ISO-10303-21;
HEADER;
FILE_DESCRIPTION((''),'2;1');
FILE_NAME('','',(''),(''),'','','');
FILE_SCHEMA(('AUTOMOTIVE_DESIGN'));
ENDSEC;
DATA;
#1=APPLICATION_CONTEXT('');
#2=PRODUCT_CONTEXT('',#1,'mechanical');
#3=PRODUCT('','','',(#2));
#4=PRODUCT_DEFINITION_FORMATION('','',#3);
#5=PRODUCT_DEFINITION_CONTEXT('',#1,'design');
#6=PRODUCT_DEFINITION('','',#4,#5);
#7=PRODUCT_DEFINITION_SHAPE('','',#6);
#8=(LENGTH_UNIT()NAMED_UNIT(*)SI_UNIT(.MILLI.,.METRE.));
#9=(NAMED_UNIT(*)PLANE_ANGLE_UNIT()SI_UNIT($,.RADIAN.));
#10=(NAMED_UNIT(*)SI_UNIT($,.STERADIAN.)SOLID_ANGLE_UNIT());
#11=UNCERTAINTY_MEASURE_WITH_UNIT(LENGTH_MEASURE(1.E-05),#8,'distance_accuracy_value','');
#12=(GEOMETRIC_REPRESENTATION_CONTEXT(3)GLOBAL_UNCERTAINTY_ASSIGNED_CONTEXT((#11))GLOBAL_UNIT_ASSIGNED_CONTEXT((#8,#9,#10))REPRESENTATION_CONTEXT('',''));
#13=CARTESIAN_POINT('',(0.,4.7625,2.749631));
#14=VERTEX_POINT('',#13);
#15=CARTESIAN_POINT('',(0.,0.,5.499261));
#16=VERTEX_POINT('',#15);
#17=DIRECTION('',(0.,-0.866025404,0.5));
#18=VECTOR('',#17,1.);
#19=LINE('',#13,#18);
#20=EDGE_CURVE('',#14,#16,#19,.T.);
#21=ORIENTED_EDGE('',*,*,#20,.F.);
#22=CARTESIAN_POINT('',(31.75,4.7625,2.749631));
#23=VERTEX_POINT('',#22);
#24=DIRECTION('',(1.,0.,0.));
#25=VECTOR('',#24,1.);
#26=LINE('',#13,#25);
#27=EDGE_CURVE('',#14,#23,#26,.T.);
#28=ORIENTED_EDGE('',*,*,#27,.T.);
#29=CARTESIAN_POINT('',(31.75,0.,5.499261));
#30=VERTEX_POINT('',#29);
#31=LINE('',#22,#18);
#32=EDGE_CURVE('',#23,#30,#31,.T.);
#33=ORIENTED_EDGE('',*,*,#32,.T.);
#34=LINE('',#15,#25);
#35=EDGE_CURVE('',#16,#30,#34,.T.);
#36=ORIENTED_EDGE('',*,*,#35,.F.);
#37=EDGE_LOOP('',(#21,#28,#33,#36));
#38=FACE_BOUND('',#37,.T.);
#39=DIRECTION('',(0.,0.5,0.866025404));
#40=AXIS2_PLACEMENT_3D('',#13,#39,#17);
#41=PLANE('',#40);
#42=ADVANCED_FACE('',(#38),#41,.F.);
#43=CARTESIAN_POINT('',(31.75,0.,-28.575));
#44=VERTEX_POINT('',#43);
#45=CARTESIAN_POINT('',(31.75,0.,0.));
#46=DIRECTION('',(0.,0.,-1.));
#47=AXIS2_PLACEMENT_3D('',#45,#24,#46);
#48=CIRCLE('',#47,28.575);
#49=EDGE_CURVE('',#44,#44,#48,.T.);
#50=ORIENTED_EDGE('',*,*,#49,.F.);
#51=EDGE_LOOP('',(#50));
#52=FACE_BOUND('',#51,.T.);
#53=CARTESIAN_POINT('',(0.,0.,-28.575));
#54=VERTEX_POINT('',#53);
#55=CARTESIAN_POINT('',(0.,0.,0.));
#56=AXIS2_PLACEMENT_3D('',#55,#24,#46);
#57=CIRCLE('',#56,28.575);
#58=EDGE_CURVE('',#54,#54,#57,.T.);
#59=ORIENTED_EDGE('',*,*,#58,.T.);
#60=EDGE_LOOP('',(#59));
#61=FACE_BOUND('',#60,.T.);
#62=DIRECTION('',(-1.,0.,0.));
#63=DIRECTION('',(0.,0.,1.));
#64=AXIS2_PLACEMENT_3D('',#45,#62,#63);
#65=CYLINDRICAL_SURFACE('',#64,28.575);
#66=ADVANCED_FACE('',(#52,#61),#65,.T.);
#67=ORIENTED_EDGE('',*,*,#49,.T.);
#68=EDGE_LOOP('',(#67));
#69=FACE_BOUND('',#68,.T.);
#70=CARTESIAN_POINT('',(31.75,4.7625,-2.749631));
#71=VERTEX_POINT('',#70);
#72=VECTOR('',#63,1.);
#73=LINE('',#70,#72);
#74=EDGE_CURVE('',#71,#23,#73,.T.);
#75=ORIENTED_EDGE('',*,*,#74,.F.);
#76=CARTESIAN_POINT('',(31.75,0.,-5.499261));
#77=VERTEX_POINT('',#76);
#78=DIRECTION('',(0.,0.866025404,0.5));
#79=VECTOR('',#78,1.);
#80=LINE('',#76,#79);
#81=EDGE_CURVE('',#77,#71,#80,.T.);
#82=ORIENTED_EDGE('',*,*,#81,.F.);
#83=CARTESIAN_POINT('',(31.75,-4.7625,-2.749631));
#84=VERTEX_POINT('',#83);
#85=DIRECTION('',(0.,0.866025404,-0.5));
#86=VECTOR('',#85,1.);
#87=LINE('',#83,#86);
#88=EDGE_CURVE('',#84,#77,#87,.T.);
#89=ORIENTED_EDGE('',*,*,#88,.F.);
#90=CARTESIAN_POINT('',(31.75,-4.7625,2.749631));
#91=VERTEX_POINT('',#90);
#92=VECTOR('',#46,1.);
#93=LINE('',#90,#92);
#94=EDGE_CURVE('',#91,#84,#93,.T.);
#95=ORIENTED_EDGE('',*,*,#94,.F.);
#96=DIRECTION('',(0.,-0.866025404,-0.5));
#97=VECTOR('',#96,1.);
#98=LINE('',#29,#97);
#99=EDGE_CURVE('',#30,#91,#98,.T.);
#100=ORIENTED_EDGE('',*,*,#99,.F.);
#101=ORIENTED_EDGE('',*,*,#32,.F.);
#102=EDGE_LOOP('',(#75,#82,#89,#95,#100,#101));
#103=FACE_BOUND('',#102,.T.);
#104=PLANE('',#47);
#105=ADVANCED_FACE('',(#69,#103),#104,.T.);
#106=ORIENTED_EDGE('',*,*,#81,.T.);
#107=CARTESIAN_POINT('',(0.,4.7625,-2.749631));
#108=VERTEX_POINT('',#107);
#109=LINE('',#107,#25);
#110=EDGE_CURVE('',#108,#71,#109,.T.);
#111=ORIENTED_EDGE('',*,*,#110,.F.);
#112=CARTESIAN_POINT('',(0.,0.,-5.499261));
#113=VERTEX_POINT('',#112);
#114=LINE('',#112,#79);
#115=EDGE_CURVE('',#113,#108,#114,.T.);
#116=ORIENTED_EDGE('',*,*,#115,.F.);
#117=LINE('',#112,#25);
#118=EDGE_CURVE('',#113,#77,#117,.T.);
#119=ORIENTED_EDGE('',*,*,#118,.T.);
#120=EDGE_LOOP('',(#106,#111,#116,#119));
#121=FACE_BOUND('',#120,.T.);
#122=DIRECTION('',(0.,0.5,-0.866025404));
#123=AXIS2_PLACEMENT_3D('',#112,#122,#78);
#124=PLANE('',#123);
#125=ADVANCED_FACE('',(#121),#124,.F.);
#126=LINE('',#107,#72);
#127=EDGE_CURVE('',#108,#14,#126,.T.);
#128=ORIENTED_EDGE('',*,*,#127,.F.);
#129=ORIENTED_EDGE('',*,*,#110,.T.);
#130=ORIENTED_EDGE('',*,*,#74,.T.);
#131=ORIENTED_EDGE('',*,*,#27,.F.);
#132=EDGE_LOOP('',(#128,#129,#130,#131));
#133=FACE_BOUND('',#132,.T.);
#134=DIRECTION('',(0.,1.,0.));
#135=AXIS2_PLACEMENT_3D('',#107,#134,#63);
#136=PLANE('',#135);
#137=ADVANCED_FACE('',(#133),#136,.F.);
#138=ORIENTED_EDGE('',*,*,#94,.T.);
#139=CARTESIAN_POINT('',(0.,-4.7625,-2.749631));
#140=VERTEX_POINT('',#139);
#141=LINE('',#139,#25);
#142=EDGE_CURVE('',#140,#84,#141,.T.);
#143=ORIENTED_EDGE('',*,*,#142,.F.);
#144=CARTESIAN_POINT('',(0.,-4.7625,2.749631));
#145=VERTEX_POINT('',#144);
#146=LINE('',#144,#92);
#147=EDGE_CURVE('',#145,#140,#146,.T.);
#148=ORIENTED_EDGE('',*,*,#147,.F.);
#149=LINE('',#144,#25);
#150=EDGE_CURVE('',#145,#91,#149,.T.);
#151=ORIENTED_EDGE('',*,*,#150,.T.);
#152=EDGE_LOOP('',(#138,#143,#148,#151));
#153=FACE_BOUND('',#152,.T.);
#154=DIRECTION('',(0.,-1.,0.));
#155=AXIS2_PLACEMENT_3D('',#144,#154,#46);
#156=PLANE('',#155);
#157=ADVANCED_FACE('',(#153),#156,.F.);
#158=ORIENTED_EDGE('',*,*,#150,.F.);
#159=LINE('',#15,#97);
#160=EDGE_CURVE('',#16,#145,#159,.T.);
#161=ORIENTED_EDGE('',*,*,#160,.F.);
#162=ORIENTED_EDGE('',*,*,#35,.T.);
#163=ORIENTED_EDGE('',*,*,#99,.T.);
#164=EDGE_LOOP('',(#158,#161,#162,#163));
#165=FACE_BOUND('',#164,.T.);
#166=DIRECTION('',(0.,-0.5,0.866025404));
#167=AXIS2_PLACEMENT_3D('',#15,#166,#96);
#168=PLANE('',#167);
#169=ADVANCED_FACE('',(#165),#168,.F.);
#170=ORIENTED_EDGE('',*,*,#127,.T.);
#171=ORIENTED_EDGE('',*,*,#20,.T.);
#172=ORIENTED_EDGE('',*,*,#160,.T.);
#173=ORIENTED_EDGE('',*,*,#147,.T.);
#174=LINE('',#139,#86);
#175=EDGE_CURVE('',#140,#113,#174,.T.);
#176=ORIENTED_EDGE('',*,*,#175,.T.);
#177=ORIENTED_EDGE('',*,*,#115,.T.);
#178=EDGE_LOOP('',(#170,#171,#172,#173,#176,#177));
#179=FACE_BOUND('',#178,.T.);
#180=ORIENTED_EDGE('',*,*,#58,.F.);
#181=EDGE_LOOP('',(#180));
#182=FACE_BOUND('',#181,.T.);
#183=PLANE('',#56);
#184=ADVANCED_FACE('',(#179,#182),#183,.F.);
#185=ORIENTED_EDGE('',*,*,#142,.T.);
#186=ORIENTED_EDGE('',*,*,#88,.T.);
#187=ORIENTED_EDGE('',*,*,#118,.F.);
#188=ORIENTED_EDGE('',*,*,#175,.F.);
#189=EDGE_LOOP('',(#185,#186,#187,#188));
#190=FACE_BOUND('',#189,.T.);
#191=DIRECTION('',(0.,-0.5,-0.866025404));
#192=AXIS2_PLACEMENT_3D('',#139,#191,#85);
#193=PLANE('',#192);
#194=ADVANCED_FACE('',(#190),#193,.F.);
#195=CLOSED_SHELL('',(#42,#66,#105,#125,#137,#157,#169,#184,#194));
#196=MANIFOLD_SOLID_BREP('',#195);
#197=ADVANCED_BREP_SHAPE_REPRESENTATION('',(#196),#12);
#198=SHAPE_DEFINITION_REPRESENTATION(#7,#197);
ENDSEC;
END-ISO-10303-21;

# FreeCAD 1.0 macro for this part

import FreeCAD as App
import Part
import Sketcher

V = App.Vector
Q = App.Units.Quantity


def add_polygon(sketch, points):
    """Adds a closed chain of lines whose ends are joined by coincident constraints."""
    first, n = sketch.GeometryCount, len(points)
    for a, b in zip(points, points[1:] + points[:1]):
        sketch.addGeometry(Part.LineSegment(App.Vector(*a, 0), App.Vector(*b, 0)), False)
    for i in range(n):
        sketch.addConstraint(Sketcher.Constraint("Coincident", first + i, 2, first + (i + 1) % n, 1))

doc = App.newDocument("Part")
body = doc.addObject("PartDesign::Body", "Body")

# Sketch on YZ plane
sketch1 = doc.addObject("Sketcher::SketchObject", "Sketch")
body.addObject(sketch1)
sketch1.AttachmentSupport = (doc.YZ_Plane, [""])
sketch1.MapMode = "FlatFace"
sketch1.addGeometry(Part.Circle(V(0, 0, 0), V(0, 0, 1), 28.575), False)
sketch1.addConstraint(Sketcher.Constraint("Coincident", 0, 3, -1, 1))
sketch1.addConstraint(Sketcher.Constraint("Diameter", 0, Q("2.25 in")))
pad1 = doc.addObject("PartDesign::Pad", "Pad")
body.addObject(pad1)
pad1.Profile = sketch1
pad1.Length = Q("1.25 in")

# Sketch on YZ plane
sketch2 = doc.addObject("Sketcher::SketchObject", "Sketch001")
body.addObject(sketch2)
sketch2.AttachmentSupport = (doc.YZ_Plane, [""])
sketch2.MapMode = "FlatFace"
sketch2.AttachmentOffset = App.Placement(V(0, 0, 1.25 * 25.4), App.Rotation())
add_polygon(sketch2, [(-4.7625, -2.749631), (0, -5.499261), (4.7625, -2.749631), (4.7625, 2.749631), (0, 5.499261), (-4.7625, 2.749631)])  # lines 0-5
sketch2.addConstraint(Sketcher.Constraint("Vertical", 2))
sketch2.addConstraint(Sketcher.Constraint("Vertical", 5))
sketch2.addConstraint(Sketcher.Constraint("Symmetric", 0, 2, 3, 2, -1, 1))
sketch2.addConstraint(Sketcher.Constraint("Symmetric", 1, 2, 4, 2, -1, 1))
sketch2.addConstraint(Sketcher.Constraint("PointOnObject", 0, 2, -2))
sketch2.addConstraint(Sketcher.Constraint("Parallel", 0, 3))
sketch2.addConstraint(Sketcher.Constraint("Horizontal", 2, 2, 4, 2))
sketch2.addConstraint(Sketcher.Constraint("Angle", 0, Q("-30 deg")))
sketch2.addConstraint(Sketcher.Constraint("DistanceX", -1, 1, 1, 2, Q("0.1875 in")))
sketch2.addConstraint(Sketcher.Constraint("DistanceY", 2, 1, 2, 2, 5.499261))
pocket1 = doc.addObject("PartDesign::Pocket", "Pocket")
body.addObject(pocket1)
pocket1.Profile = sketch2
pocket1.Type = "ThroughAll"

doc.recompute()
